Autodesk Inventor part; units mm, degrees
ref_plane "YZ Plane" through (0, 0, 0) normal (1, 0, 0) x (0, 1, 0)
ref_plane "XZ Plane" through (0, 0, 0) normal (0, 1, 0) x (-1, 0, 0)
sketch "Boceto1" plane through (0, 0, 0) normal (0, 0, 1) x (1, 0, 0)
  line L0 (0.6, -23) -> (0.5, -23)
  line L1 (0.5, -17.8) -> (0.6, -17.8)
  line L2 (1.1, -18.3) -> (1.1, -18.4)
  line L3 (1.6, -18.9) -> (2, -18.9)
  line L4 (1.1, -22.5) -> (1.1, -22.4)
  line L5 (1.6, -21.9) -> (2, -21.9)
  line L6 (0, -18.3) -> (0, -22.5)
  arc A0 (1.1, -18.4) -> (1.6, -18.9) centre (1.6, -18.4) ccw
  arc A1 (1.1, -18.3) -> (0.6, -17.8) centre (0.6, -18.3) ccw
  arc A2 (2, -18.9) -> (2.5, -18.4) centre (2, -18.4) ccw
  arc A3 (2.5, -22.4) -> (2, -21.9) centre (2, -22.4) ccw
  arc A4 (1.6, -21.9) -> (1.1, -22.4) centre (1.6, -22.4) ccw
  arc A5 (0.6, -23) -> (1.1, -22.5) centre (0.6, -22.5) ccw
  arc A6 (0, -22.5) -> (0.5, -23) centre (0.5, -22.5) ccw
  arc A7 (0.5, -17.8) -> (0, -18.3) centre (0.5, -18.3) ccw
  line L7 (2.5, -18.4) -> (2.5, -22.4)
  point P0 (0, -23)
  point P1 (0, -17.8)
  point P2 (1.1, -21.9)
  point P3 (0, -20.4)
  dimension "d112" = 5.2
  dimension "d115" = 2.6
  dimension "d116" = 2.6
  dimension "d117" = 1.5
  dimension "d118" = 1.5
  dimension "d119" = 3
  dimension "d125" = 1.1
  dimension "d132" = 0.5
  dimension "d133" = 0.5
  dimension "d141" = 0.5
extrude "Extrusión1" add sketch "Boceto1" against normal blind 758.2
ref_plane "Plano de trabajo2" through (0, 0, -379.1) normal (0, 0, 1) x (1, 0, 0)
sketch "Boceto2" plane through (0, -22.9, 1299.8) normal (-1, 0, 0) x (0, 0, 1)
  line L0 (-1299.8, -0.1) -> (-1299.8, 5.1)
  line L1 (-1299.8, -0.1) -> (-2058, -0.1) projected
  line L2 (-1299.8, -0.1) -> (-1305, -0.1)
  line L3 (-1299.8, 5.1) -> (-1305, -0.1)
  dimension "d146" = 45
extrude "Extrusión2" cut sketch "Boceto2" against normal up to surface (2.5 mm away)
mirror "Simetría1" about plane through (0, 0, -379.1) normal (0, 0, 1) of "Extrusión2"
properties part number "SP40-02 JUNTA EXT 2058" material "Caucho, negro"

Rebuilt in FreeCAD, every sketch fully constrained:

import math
import FreeCAD as App
import Part
import Sketcher

V = App.Vector
Q = App.Units.Quantity

doc = App.newDocument("Part")
body = doc.addObject("PartDesign::Body", "Body")

sketch1 = doc.addObject("Sketcher::SketchObject", "Sketch")
body.addObject(sketch1)
sketch1.AttachmentSupport = (doc.XY_Plane, [""])
sketch1.MapMode = "FlatFace"
sketch1.addGeometry([
    Part.LineSegment(V(0.5, -23, 0), V(0.6, -23, 0)),
    Part.ArcOfCircle(Part.Circle(V(0.6, -22.5, 0), V(0, 0, 1), 0.5), math.radians(-90), math.radians(0)),
    Part.LineSegment(V(1.1, -22.5, 0), V(1.1, -22.4, 0)),
    Part.ArcOfCircle(Part.Circle(V(1.6, -22.4, 0), V(0, 0, 1), 0.5), math.radians(90), math.radians(180)),
    Part.LineSegment(V(1.6, -21.9, 0), V(2, -21.9, 0)),
    Part.ArcOfCircle(Part.Circle(V(2, -22.4, 0), V(0, 0, 1), 0.5), math.radians(0), math.radians(90)),
    Part.LineSegment(V(2.5, -22.4, 0), V(2.5, -18.4, 0)),
    Part.ArcOfCircle(Part.Circle(V(2, -18.4, 0), V(0, 0, 1), 0.5), math.radians(-90), math.radians(0)),
    Part.LineSegment(V(2, -18.9, 0), V(1.6, -18.9, 0)),
    Part.ArcOfCircle(Part.Circle(V(1.6, -18.4, 0), V(0, 0, 1), 0.5), math.radians(180), math.radians(270)),
    Part.LineSegment(V(1.1, -18.4, 0), V(1.1, -18.3, 0)),
    Part.ArcOfCircle(Part.Circle(V(0.6, -18.3, 0), V(0, 0, 1), 0.5), math.radians(0), math.radians(90)),
    Part.LineSegment(V(0.6, -17.8, 0), V(0.5, -17.8, 0)),
    Part.ArcOfCircle(Part.Circle(V(0.5, -18.3, 0), V(0, 0, 1), 0.5), math.radians(90), math.radians(180)),
    Part.LineSegment(V(0, -18.3, 0), V(0, -22.5, 0)),
    Part.ArcOfCircle(Part.Circle(V(0.5, -22.5, 0), V(0, 0, 1), 0.5), math.radians(180), math.radians(270)),
], False)
sketch1.addConstraint([
    Sketcher.Constraint("Tangent", 0, 2, 1, 1),
    Sketcher.Constraint("Tangent", 1, 2, 2, 1),
    Sketcher.Constraint("Tangent", 2, 2, 3, 2),
    Sketcher.Constraint("Tangent", 3, 1, 4, 1),
    Sketcher.Constraint("Tangent", 4, 2, 5, 2),
    Sketcher.Constraint("Tangent", 5, 1, 6, 1),
    Sketcher.Constraint("Tangent", 6, 2, 7, 2),
    Sketcher.Constraint("Tangent", 7, 1, 8, 1),
    Sketcher.Constraint("Tangent", 8, 2, 9, 2),
    Sketcher.Constraint("Tangent", 9, 1, 10, 1),
    Sketcher.Constraint("Tangent", 10, 2, 11, 1),
    Sketcher.Constraint("Tangent", 11, 2, 12, 1),
    Sketcher.Constraint("Tangent", 12, 2, 13, 1),
    Sketcher.Constraint("Tangent", 13, 2, 14, 1),
    Sketcher.Constraint("Tangent", 14, 2, 15, 1),
    Sketcher.Constraint("Tangent", 15, 2, 0, 1),
    Sketcher.Constraint("Horizontal", 0),
    Sketcher.Constraint("Vertical", 2),
    Sketcher.Constraint("Horizontal", 4),
    Sketcher.Constraint("Vertical", 6),
    Sketcher.Constraint("Horizontal", 8),
    Sketcher.Constraint("Vertical", 10),
    Sketcher.Constraint("Horizontal", 12),
    Sketcher.Constraint("Vertical", 14),
    Sketcher.Constraint("Equal", 1, 3),
    Sketcher.Constraint("Equal", 3, 5),
    Sketcher.Constraint("Equal", 5, 7),
    Sketcher.Constraint("Equal", 7, 9),
    Sketcher.Constraint("Equal", 9, 11),
    Sketcher.Constraint("Equal", 11, 13),
    Sketcher.Constraint("Equal", 13, 15),
    Sketcher.Constraint("PointOnObject", 13, 2, -2),
    Sketcher.Constraint("Vertical", 3, 3, 9, 3),
    Sketcher.Constraint("Equal", 12, 2),
    Sketcher.Constraint("Equal", 2, 10),
    Sketcher.Constraint("Radius", 1, Q("0.5 mm")),
    Sketcher.Constraint("DistanceX", -1, 1, 1, 2, Q("1.1 mm")),
    Sketcher.Constraint("DistanceX", 13, 3, 7, 3, Q("1.5 mm")),
    Sketcher.Constraint("DistanceY", 6, 1, 6, 2, Q("4 mm")),
    Sketcher.Constraint("DistanceY", 0, 2, -1, 1, Q("23 mm")),
])
pad1 = doc.addObject("PartDesign::Pad", "Pad")
body.addObject(pad1)
pad1.Profile = sketch1
pad1.Length = 758.2
pad1.Reversed = True

sketch2 = doc.addObject("Sketcher::SketchObject", "Sketch001")
body.addObject(sketch2)
sketch2.AttachmentSupport = (doc.YZ_Plane, [""])
sketch2.MapMode = "FlatFace"
sketch2.addGeometry([
    Part.LineSegment(V(-23, -5, 0), V(-23, 0, 0)),
    Part.LineSegment(V(-23, 0, 0), V(-18, 0, 0)),
    Part.LineSegment(V(-18, 0, 0), V(-23, -5, 0)),
], False)
sketch2.addConstraint([
    Sketcher.Constraint("Coincident", 0, 2, 1, 1),
    Sketcher.Constraint("Coincident", 1, 2, 2, 1),
    Sketcher.Constraint("Coincident", 2, 2, 0, 1),
    Sketcher.Constraint("Vertical", 0),
    Sketcher.Constraint("Horizontal", 1),
    Sketcher.Constraint("PointOnObject", 0, 2, -1),
    Sketcher.Constraint("Equal", 1, 0),
    Sketcher.Constraint("DistanceX", 1, 1, 1, 2, Q("5.2 mm")),
    Sketcher.Constraint("DistanceX", 0, 2, -1, 1, Q("23 mm")),
])
pocket1 = doc.addObject("PartDesign::Pocket", "Pocket")
body.addObject(pocket1)
pocket1.Profile = sketch2
pocket1.Length = 2.5
pocket1.Reversed = True
doc.recompute()

datumplane = doc.addObject("PartDesign::Plane", "DatumPlane")
body.addObject(datumplane)
datumplane.AttachmentSupport = (doc.XY_Plane, [""])
datumplane.MapMode = "FlatFace"
datumplane.AttachmentOffset = App.Placement(V(0, 0, -379.1), App.Rotation())
mirrored = doc.addObject("PartDesign::Mirrored", "Mirrored")
body.addObject(mirrored)
mirrored.Originals = [pocket1]
mirrored.MirrorPlane = (datumplane, [""])
body.Tip = mirrored

doc.recompute()
